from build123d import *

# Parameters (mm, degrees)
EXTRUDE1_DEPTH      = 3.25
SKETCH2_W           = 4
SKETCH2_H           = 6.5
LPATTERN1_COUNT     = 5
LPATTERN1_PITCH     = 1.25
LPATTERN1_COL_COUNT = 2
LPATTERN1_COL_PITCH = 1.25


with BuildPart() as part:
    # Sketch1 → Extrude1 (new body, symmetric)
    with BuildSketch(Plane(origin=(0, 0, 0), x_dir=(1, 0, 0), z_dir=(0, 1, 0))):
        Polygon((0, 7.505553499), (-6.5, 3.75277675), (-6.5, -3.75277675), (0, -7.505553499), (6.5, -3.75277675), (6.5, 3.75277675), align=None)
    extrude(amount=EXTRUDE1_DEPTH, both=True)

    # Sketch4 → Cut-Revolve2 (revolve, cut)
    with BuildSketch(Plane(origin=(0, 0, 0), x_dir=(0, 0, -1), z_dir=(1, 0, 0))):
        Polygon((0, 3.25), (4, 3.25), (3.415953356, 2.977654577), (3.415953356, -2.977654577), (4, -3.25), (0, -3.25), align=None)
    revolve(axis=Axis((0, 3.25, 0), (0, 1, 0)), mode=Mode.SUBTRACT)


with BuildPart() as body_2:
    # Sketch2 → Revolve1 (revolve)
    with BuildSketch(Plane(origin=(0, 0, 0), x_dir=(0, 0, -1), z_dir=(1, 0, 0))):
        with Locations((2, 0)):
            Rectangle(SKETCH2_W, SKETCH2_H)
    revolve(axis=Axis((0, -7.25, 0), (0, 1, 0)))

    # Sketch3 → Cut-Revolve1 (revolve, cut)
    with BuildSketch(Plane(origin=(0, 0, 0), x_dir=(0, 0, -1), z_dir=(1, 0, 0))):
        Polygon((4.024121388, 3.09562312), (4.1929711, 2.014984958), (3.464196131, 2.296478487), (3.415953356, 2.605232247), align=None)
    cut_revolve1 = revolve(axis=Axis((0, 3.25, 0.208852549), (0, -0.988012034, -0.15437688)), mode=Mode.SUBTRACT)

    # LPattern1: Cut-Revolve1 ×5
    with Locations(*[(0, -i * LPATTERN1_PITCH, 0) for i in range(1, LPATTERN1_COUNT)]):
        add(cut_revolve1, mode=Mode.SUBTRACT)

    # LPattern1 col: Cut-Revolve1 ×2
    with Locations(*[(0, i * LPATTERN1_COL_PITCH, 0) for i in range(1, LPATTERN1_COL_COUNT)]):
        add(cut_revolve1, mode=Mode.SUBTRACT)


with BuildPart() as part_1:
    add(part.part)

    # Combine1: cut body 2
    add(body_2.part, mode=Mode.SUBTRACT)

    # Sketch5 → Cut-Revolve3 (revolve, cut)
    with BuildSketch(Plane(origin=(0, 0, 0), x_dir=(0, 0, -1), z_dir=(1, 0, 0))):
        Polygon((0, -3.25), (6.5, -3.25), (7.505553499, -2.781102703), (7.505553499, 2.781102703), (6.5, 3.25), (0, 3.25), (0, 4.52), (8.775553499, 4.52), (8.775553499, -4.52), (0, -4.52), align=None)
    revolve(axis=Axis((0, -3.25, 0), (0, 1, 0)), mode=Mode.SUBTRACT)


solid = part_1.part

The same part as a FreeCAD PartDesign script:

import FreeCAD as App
import Part
import Sketcher
from FreeCAD import Vector
Q = App.Units.Quantity

doc = App.newDocument("Part")
body = doc.addObject("PartDesign::Body", "Body")

sketch1 = body.newObject("Sketcher::SketchObject", "Sketch")
sketch1.AttachmentSupport = (doc.getObject("XZ_Plane"), [""])
sketch1.MapMode = "FlatFace"
sketch1.addGeometry([
    Part.LineSegment(Vector(0, -7.505553, 0), Vector(-6.5, -3.752777, 0)),
    Part.LineSegment(Vector(-6.5, -3.752777, 0), Vector(-6.5, 3.752777, 0)),
    Part.LineSegment(Vector(-6.5, 3.752777, 0), Vector(0, 7.505553, 0)),
    Part.LineSegment(Vector(0, 7.505553, 0), Vector(6.5, 3.752777, 0)),
    Part.LineSegment(Vector(6.5, 3.752777, 0), Vector(6.5, -3.752777, 0)),
    Part.LineSegment(Vector(6.5, -3.752777, 0), Vector(0, -7.505553, 0)),
], False)
sketch1.addConstraint([
    Sketcher.Constraint("Coincident", 0, 2, 1, 1),
    Sketcher.Constraint("Coincident", 1, 2, 2, 1),
    Sketcher.Constraint("Coincident", 2, 2, 3, 1),
    Sketcher.Constraint("Coincident", 3, 2, 4, 1),
    Sketcher.Constraint("Coincident", 4, 2, 5, 1),
    Sketcher.Constraint("Coincident", 5, 2, 0, 1),
    Sketcher.Constraint("Vertical", 1),
    Sketcher.Constraint("Vertical", 4),
    Sketcher.Constraint("Symmetric", 0, 2, 3, 2, -1, 1),
    Sketcher.Constraint("Symmetric", 2, 2, 5, 2, -1, 1),
    Sketcher.Constraint("PointOnObject", 2, 2, -2),
    Sketcher.Constraint("Parallel", 2, 5),
    Sketcher.Constraint("Horizontal", 1, 2, 3, 2),
    Sketcher.Constraint("Angle", 0, Q("150 deg")),
    Sketcher.Constraint("DistanceX", 1, 2, 3, 2, Q("13 mm")),
    Sketcher.Constraint("DistanceY", 1, 1, 1, 2, Q("7.505554 mm")),
])
pad1 = body.newObject("PartDesign::Pad", "Pad")
pad1.Profile = sketch1
pad1.Length = 6.5
pad1.Midplane = True

sketch2 = body.newObject("Sketcher::SketchObject", "Sketch001")
sketch2.AttachmentSupport = (doc.getObject("YZ_Plane"), [""])
sketch2.MapMode = "FlatFace"
sketch2.addGeometry([
    Part.LineSegment(Vector(3.25, -4, 0), Vector(3.25, 0, 0)),
    Part.LineSegment(Vector(3.25, 0, 0), Vector(-3.25, 0, 0)),
    Part.LineSegment(Vector(-3.25, 0, 0), Vector(-3.25, -4, 0)),
    Part.LineSegment(Vector(-3.25, -4, 0), Vector(-2.977655, -3.415953, 0)),
    Part.LineSegment(Vector(-2.977655, -3.415953, 0), Vector(2.977655, -3.415953, 0)),
    Part.LineSegment(Vector(2.977655, -3.415953, 0), Vector(3.25, -4, 0)),
], False)
sketch2.addConstraint([
    Sketcher.Constraint("Coincident", 0, 2, 1, 1),
    Sketcher.Constraint("Coincident", 1, 2, 2, 1),
    Sketcher.Constraint("Coincident", 2, 2, 3, 1),
    Sketcher.Constraint("Coincident", 3, 2, 4, 1),
    Sketcher.Constraint("Coincident", 4, 2, 5, 1),
    Sketcher.Constraint("Coincident", 5, 2, 0, 1),
    Sketcher.Constraint("Vertical", 0),
    Sketcher.Constraint("Horizontal", 1),
    Sketcher.Constraint("Vertical", 2),
    Sketcher.Constraint("Horizontal", 4),
    Sketcher.Constraint("Symmetric", 0, 2, 1, 2, -1, 1),
    Sketcher.Constraint("Horizontal", 2, 2, 5, 2),
    Sketcher.Constraint("Equal", 3, 5),
    Sketcher.Constraint("DistanceY", 0, 1, 0, 2, Q("4 mm")),
    Sketcher.Constraint("Angle", 3, Q("65 deg")),
    Sketcher.Constraint("DistanceX", 1, 2, 1, 1, Q("6.5 mm")),
    Sketcher.Constraint("DistanceX", 4, 1, 4, 2, Q("5.955309 mm")),
])
groove = body.newObject("PartDesign::Groove", "Groove")
groove.Profile = sketch2
groove.ReferenceAxis = (sketch2, ["H_Axis"])
groove.Angle = 360
body2 = doc.addObject("PartDesign::Body", "Body001")

sketch3 = body2.newObject("Sketcher::SketchObject", "Sketch002")
sketch3.AttachmentSupport = (doc.getObject("YZ_Plane001"), [""])
sketch3.MapMode = "FlatFace"
sketch3.addGeometry([
    Part.LineSegment(Vector(3.25, 0, 0), Vector(-3.25, 0, 0)),
    Part.LineSegment(Vector(-3.25, 0, 0), Vector(-3.25, -4, 0)),
    Part.LineSegment(Vector(-3.25, -4, 0), Vector(3.25, -4, 0)),
    Part.LineSegment(Vector(3.25, -4, 0), Vector(3.25, 0, 0)),
], False)
sketch3.addConstraint([
    Sketcher.Constraint("Coincident", 0, 2, 1, 1),
    Sketcher.Constraint("Coincident", 1, 2, 2, 1),
    Sketcher.Constraint("Coincident", 2, 2, 3, 1),
    Sketcher.Constraint("Coincident", 3, 2, 0, 1),
    Sketcher.Constraint("Horizontal", 0),
    Sketcher.Constraint("Vertical", 1),
    Sketcher.Constraint("Horizontal", 2),
    Sketcher.Constraint("Vertical", 3),
    Sketcher.Constraint("Symmetric", 0, 2, 3, 2, -1, 1),
    Sketcher.Constraint("DistanceY", 1, 2, 1, 1, Q("4 mm")),
    Sketcher.Constraint("DistanceX", 0, 2, 0, 1, Q("6.5 mm")),
])
revolution = body2.newObject("PartDesign::Revolution", "Revolution")
revolution.Profile = sketch3
revolution.ReferenceAxis = (sketch3, ["H_Axis"])
revolution.Angle = 360

sketch4 = body2.newObject("Sketcher::SketchObject", "Sketch003")
sketch4.AttachmentSupport = (doc.getObject("YZ_Plane001"), [""])
sketch4.MapMode = "FlatFace"
sketch4.addGeometry([
    Part.LineSegment(Vector(2.014985, -4.192971, 0), Vector(3.095623, -4.024121, 0)),
    Part.LineSegment(Vector(3.095623, -4.024121, 0), Vector(2.605232, -3.415953, 0)),
    Part.LineSegment(Vector(2.605232, -3.415953, 0), Vector(2.296478, -3.464196, 0)),
    Part.LineSegment(Vector(2.296478, -3.464196, 0), Vector(2.014985, -4.192971, 0)),
], False)
sketch4.addGeometry(Part.LineSegment(Vector(2.453663, 0.084425, 0), Vector(1.373025, -0.084425, 0)), True)
sketch4.addConstraint([
    Sketcher.Constraint("Coincident", 0, 2, 1, 1),
    Sketcher.Constraint("Coincident", 1, 2, 2, 1),
    Sketcher.Constraint("Coincident", 2, 2, 3, 1),
    Sketcher.Constraint("Coincident", 3, 2, 0, 1),
    Sketcher.Constraint("Parallel", 0, 2),
    Sketcher.Constraint("Parallel", 2, 4),
    Sketcher.Constraint("Equal", 1, 3),
    Sketcher.Constraint("Equal", 0, 4),
    Sketcher.Constraint("Distance", 2, Q("0.3125 mm")),
    Sketcher.Constraint("DistanceX", 4, 2, 0, 2, Q("1.722599 mm")),
    Sketcher.Constraint("Distance", 0, Q("1.09375 mm")),
    Sketcher.Constraint("Distance", 1, Q("0.78125 mm")),
    Sketcher.Constraint("DistanceY", 0, 2, -1, 1, Q("4.024121 mm")),
    Sketcher.Constraint("DistanceX", -1, 1, 2, 2, Q("2.296478 mm")),
    Sketcher.Constraint("DistanceY", 3, 2, -1, 1, Q("4.192971 mm")),
    Sketcher.Constraint("DistanceY", 1, 2, 4, 1, Q("3.500378 mm")),
])
groove2 = body2.newObject("PartDesign::Groove", "Groove001")
groove2.Profile = sketch4
groove2.ReferenceAxis = (sketch4, ["Axis0"])
groove2.Angle = 360
doc.recompute()

linearpattern = body2.newObject("PartDesign::LinearPattern", "LinearPattern")
linearpattern.Originals = [groove2]
linearpattern.Direction = (doc.getObject("Y_Axis001"), [""])
linearpattern.Mode = "offset"
linearpattern.Offset = 1.25
linearpattern.Occurrences = 5
linearpattern.Reversed = True
body2.Tip = linearpattern
doc.recompute()

linearpattern2 = body2.newObject("PartDesign::LinearPattern", "LinearPattern001")
linearpattern2.Originals = [groove2]
linearpattern2.Direction = (doc.getObject("Y_Axis001"), [""])
linearpattern2.Mode = "offset"
linearpattern2.Offset = 1.25
linearpattern2.Occurrences = 2
body2.Tip = linearpattern2
doc.recompute()

boolean = body.newObject("PartDesign::Boolean", "Boolean")
boolean.Type = "Cut"
boolean.addObjects([body2])

sketch5 = body.newObject("Sketcher::SketchObject", "Sketch004")
sketch5.AttachmentSupport = (doc.getObject("YZ_Plane"), [""])
sketch5.MapMode = "FlatFace"
sketch5.addGeometry([
    Part.LineSegment(Vector(-3.25, -6.5, 0), Vector(-3.25, 0, 0)),
    Part.LineSegment(Vector(-3.25, 0, 0), Vector(-4.52, 0, 0)),
    Part.LineSegment(Vector(-4.52, 0, 0), Vector(-4.52, -8.775553, 0)),
    Part.LineSegment(Vector(-4.52, -8.775553, 0), Vector(4.52, -8.775553, 0)),
    Part.LineSegment(Vector(4.52, -8.775553, 0), Vector(4.52, 0, 0)),
    Part.LineSegment(Vector(4.52, 0, 0), Vector(3.25, 0, 0)),
    Part.LineSegment(Vector(3.25, 0, 0), Vector(3.25, -6.5, 0)),
    Part.LineSegment(Vector(3.25, -6.5, 0), Vector(2.781103, -7.505553, 0)),
    Part.LineSegment(Vector(2.781103, -7.505553, 0), Vector(-2.781103, -7.505553, 0)),
    Part.LineSegment(Vector(-2.781103, -7.505553, 0), Vector(-3.25, -6.5, 0)),
], False)
sketch5.addConstraint([
    Sketcher.Constraint("Coincident", 0, 2, 1, 1),
    Sketcher.Constraint("Coincident", 1, 2, 2, 1),
    Sketcher.Constraint("Coincident", 2, 2, 3, 1),
    Sketcher.Constraint("Coincident", 3, 2, 4, 1),
    Sketcher.Constraint("Coincident", 4, 2, 5, 1),
    Sketcher.Constraint("Coincident", 5, 2, 6, 1),
    Sketcher.Constraint("Coincident", 6, 2, 7, 1),
    Sketcher.Constraint("Coincident", 7, 2, 8, 1),
    Sketcher.Constraint("Coincident", 8, 2, 9, 1),
    Sketcher.Constraint("Coincident", 9, 2, 0, 1),
    Sketcher.Constraint("Vertical", 0),
    Sketcher.Constraint("Horizontal", 1),
    Sketcher.Constraint("Vertical", 2),
    Sketcher.Constraint("Horizontal", 3),
    Sketcher.Constraint("Vertical", 4),
    Sketcher.Constraint("Horizontal", 5),
    Sketcher.Constraint("Vertical", 6),
    Sketcher.Constraint("Horizontal", 8),
    Sketcher.Constraint("Symmetric", 1, 2, 4, 2, -1, 1),
    Sketcher.Constraint("Symmetric", 0, 2, 5, 2, -2),
    Sketcher.Constraint("Horizontal", 6, 2, 9, 2),
    Sketcher.Constraint("Equal", 7, 9),
    Sketcher.Constraint("Angle", 7, Q("-115 deg")),
    Sketcher.Constraint("DistanceY", 0, 1, 0, 2, Q("6.5 mm")),
    Sketcher.Constraint("DistanceX", 1, 2, 1, 1, Q("1.27 mm")),
    Sketcher.Constraint("DistanceX", 3, 1, 3, 2, Q("9.04 mm")),
    Sketcher.Constraint("DistanceY", 3, 2, 7, 2, Q("1.27 mm")),
    Sketcher.Constraint("DistanceX", 8, 2, 8, 1, Q("5.562205 mm")),
])
groove3 = body.newObject("PartDesign::Groove", "Groove002")
groove3.Profile = sketch5
groove3.ReferenceAxis = (sketch5, ["H_Axis"])
groove3.Angle = 360

doc.recompute()
